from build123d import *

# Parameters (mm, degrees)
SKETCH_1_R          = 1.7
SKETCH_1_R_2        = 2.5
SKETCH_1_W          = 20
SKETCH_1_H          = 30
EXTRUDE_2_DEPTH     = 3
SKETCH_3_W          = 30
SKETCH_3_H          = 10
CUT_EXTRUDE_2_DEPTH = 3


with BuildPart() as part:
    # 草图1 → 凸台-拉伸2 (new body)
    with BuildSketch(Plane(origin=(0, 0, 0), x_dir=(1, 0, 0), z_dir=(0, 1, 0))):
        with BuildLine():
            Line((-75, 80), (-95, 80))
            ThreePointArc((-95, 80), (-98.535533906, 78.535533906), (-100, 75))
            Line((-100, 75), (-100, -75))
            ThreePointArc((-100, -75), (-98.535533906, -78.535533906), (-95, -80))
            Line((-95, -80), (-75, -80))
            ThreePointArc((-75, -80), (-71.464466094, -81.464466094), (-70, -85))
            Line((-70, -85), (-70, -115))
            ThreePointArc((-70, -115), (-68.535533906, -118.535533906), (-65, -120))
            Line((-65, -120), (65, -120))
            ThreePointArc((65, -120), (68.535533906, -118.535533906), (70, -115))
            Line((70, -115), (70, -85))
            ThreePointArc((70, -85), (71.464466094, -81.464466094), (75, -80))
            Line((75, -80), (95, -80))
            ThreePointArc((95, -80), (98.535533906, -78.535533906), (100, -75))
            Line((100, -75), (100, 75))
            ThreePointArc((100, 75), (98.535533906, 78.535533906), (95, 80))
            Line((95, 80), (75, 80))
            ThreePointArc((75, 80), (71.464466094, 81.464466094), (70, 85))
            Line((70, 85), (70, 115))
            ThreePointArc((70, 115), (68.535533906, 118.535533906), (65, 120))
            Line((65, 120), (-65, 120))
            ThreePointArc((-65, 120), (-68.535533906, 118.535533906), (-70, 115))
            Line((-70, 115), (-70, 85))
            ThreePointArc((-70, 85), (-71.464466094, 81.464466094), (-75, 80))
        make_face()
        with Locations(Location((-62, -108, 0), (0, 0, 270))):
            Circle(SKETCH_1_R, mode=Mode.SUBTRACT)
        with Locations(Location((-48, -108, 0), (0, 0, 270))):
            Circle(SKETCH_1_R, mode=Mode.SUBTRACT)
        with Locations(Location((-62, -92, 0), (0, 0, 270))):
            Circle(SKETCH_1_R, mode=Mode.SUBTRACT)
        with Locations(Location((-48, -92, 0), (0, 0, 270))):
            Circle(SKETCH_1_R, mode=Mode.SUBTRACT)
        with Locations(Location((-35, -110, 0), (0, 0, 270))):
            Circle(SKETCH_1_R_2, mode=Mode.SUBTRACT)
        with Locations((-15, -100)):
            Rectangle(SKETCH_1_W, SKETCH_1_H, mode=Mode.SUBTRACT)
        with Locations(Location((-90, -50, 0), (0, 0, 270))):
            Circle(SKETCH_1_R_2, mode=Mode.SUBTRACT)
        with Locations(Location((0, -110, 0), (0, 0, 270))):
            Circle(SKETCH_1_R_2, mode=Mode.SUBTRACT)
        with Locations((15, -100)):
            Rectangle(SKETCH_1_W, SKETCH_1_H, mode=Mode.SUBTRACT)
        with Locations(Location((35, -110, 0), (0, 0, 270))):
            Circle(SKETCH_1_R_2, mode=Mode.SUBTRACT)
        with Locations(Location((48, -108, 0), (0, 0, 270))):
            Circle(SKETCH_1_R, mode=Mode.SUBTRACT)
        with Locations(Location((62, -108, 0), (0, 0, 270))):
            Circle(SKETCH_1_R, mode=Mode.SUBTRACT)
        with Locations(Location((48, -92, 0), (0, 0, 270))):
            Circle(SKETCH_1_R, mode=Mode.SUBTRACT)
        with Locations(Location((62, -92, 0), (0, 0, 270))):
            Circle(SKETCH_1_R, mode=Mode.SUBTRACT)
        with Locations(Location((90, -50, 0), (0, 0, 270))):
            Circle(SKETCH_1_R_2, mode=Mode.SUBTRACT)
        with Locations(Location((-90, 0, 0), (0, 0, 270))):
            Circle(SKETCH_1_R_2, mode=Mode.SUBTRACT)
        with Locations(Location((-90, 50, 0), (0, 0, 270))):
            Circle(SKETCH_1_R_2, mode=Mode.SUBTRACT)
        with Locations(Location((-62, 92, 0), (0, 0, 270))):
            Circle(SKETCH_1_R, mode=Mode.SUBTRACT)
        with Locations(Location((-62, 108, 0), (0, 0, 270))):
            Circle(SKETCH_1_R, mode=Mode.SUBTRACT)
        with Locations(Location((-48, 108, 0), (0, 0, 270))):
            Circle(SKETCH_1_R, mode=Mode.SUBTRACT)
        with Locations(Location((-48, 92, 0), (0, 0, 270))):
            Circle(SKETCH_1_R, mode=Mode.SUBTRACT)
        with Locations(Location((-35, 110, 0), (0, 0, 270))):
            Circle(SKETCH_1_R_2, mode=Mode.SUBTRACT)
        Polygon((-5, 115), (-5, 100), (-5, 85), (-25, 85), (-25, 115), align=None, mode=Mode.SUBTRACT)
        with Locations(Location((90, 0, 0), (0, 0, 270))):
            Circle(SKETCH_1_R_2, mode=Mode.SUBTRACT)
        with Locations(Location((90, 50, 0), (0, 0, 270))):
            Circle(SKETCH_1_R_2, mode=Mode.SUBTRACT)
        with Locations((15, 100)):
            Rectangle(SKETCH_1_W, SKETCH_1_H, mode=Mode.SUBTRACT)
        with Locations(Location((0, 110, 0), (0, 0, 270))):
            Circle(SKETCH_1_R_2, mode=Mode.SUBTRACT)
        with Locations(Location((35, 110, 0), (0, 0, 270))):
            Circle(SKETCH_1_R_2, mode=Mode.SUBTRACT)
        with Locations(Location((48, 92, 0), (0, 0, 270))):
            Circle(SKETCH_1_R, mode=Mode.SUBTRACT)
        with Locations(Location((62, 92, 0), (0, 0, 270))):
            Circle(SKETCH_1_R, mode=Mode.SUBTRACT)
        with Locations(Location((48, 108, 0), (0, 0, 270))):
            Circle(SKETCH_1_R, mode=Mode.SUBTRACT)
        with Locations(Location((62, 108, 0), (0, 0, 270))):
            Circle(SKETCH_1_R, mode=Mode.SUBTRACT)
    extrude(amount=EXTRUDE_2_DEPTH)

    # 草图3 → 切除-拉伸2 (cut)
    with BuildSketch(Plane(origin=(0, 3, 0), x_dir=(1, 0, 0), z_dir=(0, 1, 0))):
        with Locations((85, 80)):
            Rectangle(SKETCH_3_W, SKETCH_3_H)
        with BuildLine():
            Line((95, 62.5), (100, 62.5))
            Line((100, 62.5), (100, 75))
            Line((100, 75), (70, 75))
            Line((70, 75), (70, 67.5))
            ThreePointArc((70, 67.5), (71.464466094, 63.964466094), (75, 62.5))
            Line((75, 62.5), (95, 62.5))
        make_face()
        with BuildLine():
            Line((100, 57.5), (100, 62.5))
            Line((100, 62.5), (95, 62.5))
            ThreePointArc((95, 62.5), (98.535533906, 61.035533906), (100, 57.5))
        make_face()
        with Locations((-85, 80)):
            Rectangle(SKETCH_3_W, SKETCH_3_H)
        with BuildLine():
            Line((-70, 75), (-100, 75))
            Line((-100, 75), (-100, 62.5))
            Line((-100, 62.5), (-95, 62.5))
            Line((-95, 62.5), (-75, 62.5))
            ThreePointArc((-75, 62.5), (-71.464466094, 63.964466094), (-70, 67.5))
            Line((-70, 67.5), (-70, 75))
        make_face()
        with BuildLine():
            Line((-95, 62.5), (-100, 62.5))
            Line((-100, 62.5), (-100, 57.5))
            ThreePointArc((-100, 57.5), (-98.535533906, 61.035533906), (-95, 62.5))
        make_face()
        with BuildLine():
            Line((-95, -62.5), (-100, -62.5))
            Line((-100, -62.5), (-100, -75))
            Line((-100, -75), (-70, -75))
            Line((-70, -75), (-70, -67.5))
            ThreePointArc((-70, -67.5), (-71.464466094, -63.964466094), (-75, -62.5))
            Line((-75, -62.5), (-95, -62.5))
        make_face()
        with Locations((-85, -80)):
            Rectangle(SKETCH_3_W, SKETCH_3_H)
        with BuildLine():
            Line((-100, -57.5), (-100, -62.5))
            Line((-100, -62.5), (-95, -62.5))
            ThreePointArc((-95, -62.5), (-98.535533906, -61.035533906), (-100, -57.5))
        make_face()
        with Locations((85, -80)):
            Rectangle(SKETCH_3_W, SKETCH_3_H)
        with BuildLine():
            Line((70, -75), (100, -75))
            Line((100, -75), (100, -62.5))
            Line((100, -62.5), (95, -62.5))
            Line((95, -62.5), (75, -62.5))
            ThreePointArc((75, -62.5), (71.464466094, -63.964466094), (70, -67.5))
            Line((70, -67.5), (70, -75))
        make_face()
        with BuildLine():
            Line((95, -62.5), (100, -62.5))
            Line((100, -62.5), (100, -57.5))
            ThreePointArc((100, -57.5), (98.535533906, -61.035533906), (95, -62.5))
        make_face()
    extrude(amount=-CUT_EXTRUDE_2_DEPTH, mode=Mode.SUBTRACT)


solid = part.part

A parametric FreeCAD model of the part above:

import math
import FreeCAD as App
import Part
import Sketcher


def add_polygon(sketch, points):
    """Adds a closed chain of lines whose ends are joined by coincident constraints."""
    first, n = sketch.GeometryCount, len(points)
    for a, b in zip(points, points[1:] + points[:1]):
        sketch.addGeometry(Part.LineSegment(App.Vector(*a, 0), App.Vector(*b, 0)), False)
    for i in range(n):
        sketch.addConstraint(Sketcher.Constraint("Coincident", first + i, 2, first + (i + 1) % n, 1))

doc = App.newDocument("Part")
body = doc.addObject("PartDesign::Body", "Body")

sketch1 = doc.addObject("Sketcher::SketchObject", "Sketch")
body.addObject(sketch1)
sketch1.AttachmentSupport = (doc.XZ_Plane, [""])
sketch1.MapMode = "FlatFace"
sketch1.addGeometry(Part.LineSegment(App.Vector(-75, -80, 0), App.Vector(-95, -80, 0)), False)
sketch1.addGeometry(Part.ArcOfCircle(Part.Circle(App.Vector(-95, -75, 0), App.Vector(0, 0, 1), 5), math.radians(180), math.radians(270)), False)
sketch1.addGeometry(Part.LineSegment(App.Vector(-100, -75, 0), App.Vector(-100, 75, 0)), False)
sketch1.addGeometry(Part.ArcOfCircle(Part.Circle(App.Vector(-95, 75, 0), App.Vector(0, 0, 1), 5), math.radians(90), math.radians(180)), False)
sketch1.addGeometry(Part.LineSegment(App.Vector(-95, 80, 0), App.Vector(-75, 80, 0)), False)
sketch1.addGeometry(Part.ArcOfCircle(Part.Circle(App.Vector(-75, 85, 0), App.Vector(0, 0, 1), 5), math.radians(-90), math.radians(0)), False)
sketch1.addGeometry(Part.LineSegment(App.Vector(-70, 85, 0), App.Vector(-70, 115, 0)), False)
sketch1.addGeometry(Part.ArcOfCircle(Part.Circle(App.Vector(-65, 115, 0), App.Vector(0, 0, 1), 5), math.radians(90), math.radians(180)), False)
sketch1.addGeometry(Part.LineSegment(App.Vector(-65, 120, 0), App.Vector(65, 120, 0)), False)
sketch1.addGeometry(Part.ArcOfCircle(Part.Circle(App.Vector(65, 115, 0), App.Vector(0, 0, 1), 5), math.radians(0), math.radians(90)), False)
sketch1.addGeometry(Part.LineSegment(App.Vector(70, 115, 0), App.Vector(70, 85, 0)), False)
sketch1.addGeometry(Part.ArcOfCircle(Part.Circle(App.Vector(75, 85, 0), App.Vector(0, 0, 1), 5), math.radians(180), math.radians(270)), False)
sketch1.addGeometry(Part.LineSegment(App.Vector(75, 80, 0), App.Vector(95, 80, 0)), False)
sketch1.addGeometry(Part.ArcOfCircle(Part.Circle(App.Vector(95, 75, 0), App.Vector(0, 0, 1), 5), math.radians(0), math.radians(90)), False)
sketch1.addGeometry(Part.LineSegment(App.Vector(100, 75, 0), App.Vector(100, -75, 0)), False)
sketch1.addGeometry(Part.ArcOfCircle(Part.Circle(App.Vector(95, -75, 0), App.Vector(0, 0, 1), 5), math.radians(-90), math.radians(0)), False)
sketch1.addGeometry(Part.LineSegment(App.Vector(95, -80, 0), App.Vector(75, -80, 0)), False)
sketch1.addGeometry(Part.ArcOfCircle(Part.Circle(App.Vector(75, -85, 0), App.Vector(0, 0, 1), 5), math.radians(90), math.radians(180)), False)
sketch1.addGeometry(Part.LineSegment(App.Vector(70, -85, 0), App.Vector(70, -115, 0)), False)
sketch1.addGeometry(Part.ArcOfCircle(Part.Circle(App.Vector(65, -115, 0), App.Vector(0, 0, 1), 5), math.radians(-90), math.radians(0)), False)
sketch1.addGeometry(Part.LineSegment(App.Vector(65, -120, 0), App.Vector(-65, -120, 0)), False)
sketch1.addGeometry(Part.ArcOfCircle(Part.Circle(App.Vector(-65, -115, 0), App.Vector(0, 0, 1), 5), math.radians(180), math.radians(270)), False)
sketch1.addGeometry(Part.LineSegment(App.Vector(-70, -115, 0), App.Vector(-70, -85, 0)), False)
sketch1.addGeometry(Part.ArcOfCircle(Part.Circle(App.Vector(-75, -85, 0), App.Vector(0, 0, 1), 5), math.radians(0), math.radians(90)), False)
sketch1.addGeometry(Part.Circle(App.Vector(-62, 108, 0), App.Vector(0, 0, 1), 1.7), False)
sketch1.addGeometry(Part.Circle(App.Vector(-48, 108, 0), App.Vector(0, 0, 1), 1.7), False)
sketch1.addGeometry(Part.Circle(App.Vector(-62, 92, 0), App.Vector(0, 0, 1), 1.7), False)
sketch1.addGeometry(Part.Circle(App.Vector(-48, 92, 0), App.Vector(0, 0, 1), 1.7), False)
sketch1.addGeometry(Part.Circle(App.Vector(-35, 110, 0), App.Vector(0, 0, 1), 2.5), False)
add_polygon(sketch1, [(-5, 115), (-25, 115), (-25, 85), (-5, 85)])
sketch1.addGeometry(Part.Circle(App.Vector(-90, 50, 0), App.Vector(0, 0, 1), 2.5), False)
sketch1.addGeometry(Part.Circle(App.Vector(0, 110, 0), App.Vector(0, 0, 1), 2.5), False)
add_polygon(sketch1, [(25, 115), (5, 115), (5, 85), (25, 85)])
sketch1.addGeometry(Part.Circle(App.Vector(35, 110, 0), App.Vector(0, 0, 1), 2.5), False)
sketch1.addGeometry(Part.Circle(App.Vector(48, 108, 0), App.Vector(0, 0, 1), 1.7), False)
sketch1.addGeometry(Part.Circle(App.Vector(62, 108, 0), App.Vector(0, 0, 1), 1.7), False)
sketch1.addGeometry(Part.Circle(App.Vector(48, 92, 0), App.Vector(0, 0, 1), 1.7), False)
sketch1.addGeometry(Part.Circle(App.Vector(62, 92, 0), App.Vector(0, 0, 1), 1.7), False)
sketch1.addGeometry(Part.Circle(App.Vector(90, 50, 0), App.Vector(0, 0, 1), 2.5), False)
sketch1.addGeometry(Part.Circle(App.Vector(-90, 0, 0), App.Vector(0, 0, 1), 2.5), False)
sketch1.addGeometry(Part.Circle(App.Vector(-90, -50, 0), App.Vector(0, 0, 1), 2.5), False)
sketch1.addGeometry(Part.Circle(App.Vector(-62, -92, 0), App.Vector(0, 0, 1), 1.7), False)
sketch1.addGeometry(Part.Circle(App.Vector(-48, -92, 0), App.Vector(0, 0, 1), 1.7), False)
sketch1.addGeometry(Part.Circle(App.Vector(-62, -108, 0), App.Vector(0, 0, 1), 1.7), False)
sketch1.addGeometry(Part.Circle(App.Vector(-48, -108, 0), App.Vector(0, 0, 1), 1.7), False)
sketch1.addGeometry(Part.Circle(App.Vector(-35, -110, 0), App.Vector(0, 0, 1), 2.5), False)
add_polygon(sketch1, [(-25, -115), (-5, -115), (-5, -85), (-25, -85)])
sketch1.addGeometry(Part.Circle(App.Vector(90, 0, 0), App.Vector(0, 0, 1), 2.5), False)
sketch1.addGeometry(Part.Circle(App.Vector(90, -50, 0), App.Vector(0, 0, 1), 2.5), False)
add_polygon(sketch1, [(25, -85), (5, -85), (5, -115), (25, -115)])
sketch1.addGeometry(Part.Circle(App.Vector(0, -110, 0), App.Vector(0, 0, 1), 2.5), False)
sketch1.addGeometry(Part.Circle(App.Vector(35, -110, 0), App.Vector(0, 0, 1), 2.5), False)
sketch1.addGeometry(Part.Circle(App.Vector(48, -92, 0), App.Vector(0, 0, 1), 1.7), False)
sketch1.addGeometry(Part.Circle(App.Vector(62, -92, 0), App.Vector(0, 0, 1), 1.7), False)
sketch1.addGeometry(Part.Circle(App.Vector(48, -108, 0), App.Vector(0, 0, 1), 1.7), False)
sketch1.addGeometry(Part.Circle(App.Vector(62, -108, 0), App.Vector(0, 0, 1), 1.7), False)
sketch1.addConstraint([
    Sketcher.Constraint("Tangent", 0, 2, 1, 2),
    Sketcher.Constraint("Tangent", 1, 1, 2, 1),
    Sketcher.Constraint("Tangent", 2, 2, 3, 2),
    Sketcher.Constraint("Tangent", 3, 1, 4, 1),
    Sketcher.Constraint("Tangent", 4, 2, 5, 1),
    Sketcher.Constraint("Tangent", 5, 2, 6, 1),
    Sketcher.Constraint("Tangent", 6, 2, 7, 2),
    Sketcher.Constraint("Tangent", 7, 1, 8, 1),
    Sketcher.Constraint("Tangent", 8, 2, 9, 2),
    Sketcher.Constraint("Tangent", 9, 1, 10, 1),
    Sketcher.Constraint("Tangent", 10, 2, 11, 1),
    Sketcher.Constraint("Tangent", 11, 2, 12, 1),
    Sketcher.Constraint("Tangent", 12, 2, 13, 2),
    Sketcher.Constraint("Tangent", 13, 1, 14, 1),
    Sketcher.Constraint("Tangent", 14, 2, 15, 2),
    Sketcher.Constraint("Tangent", 15, 1, 16, 1),
    Sketcher.Constraint("Tangent", 16, 2, 17, 1),
    Sketcher.Constraint("Tangent", 17, 2, 18, 1),
    Sketcher.Constraint("Tangent", 18, 2, 19, 2),
    Sketcher.Constraint("Tangent", 19, 1, 20, 1),
    Sketcher.Constraint("Tangent", 20, 2, 21, 2),
    Sketcher.Constraint("Tangent", 21, 1, 22, 1),
    Sketcher.Constraint("Tangent", 22, 2, 23, 1),
    Sketcher.Constraint("Tangent", 23, 2, 0, 1),
    Sketcher.Constraint("Horizontal", 0),
    Sketcher.Constraint("Vertical", 2),
    Sketcher.Constraint("Horizontal", 4),
    Sketcher.Constraint("Vertical", 6),
    Sketcher.Constraint("Horizontal", 8),
    Sketcher.Constraint("Vertical", 10),
    Sketcher.Constraint("Horizontal", 12),
    Sketcher.Constraint("Vertical", 14),
    Sketcher.Constraint("Horizontal", 16),
    Sketcher.Constraint("Vertical", 18),
    Sketcher.Constraint("Horizontal", 20),
    Sketcher.Constraint("Vertical", 22),
    Sketcher.Constraint("Horizontal", 29),
    Sketcher.Constraint("Vertical", 30),
    Sketcher.Constraint("Horizontal", 31),
    Sketcher.Constraint("Vertical", 32),
    Sketcher.Constraint("Horizontal", 35),
    Sketcher.Constraint("Vertical", 36),
    Sketcher.Constraint("Horizontal", 37),
    Sketcher.Constraint("Vertical", 38),
    Sketcher.Constraint("Horizontal", 52),
    Sketcher.Constraint("Vertical", 53),
    Sketcher.Constraint("Horizontal", 54),
    Sketcher.Constraint("Vertical", 55),
    Sketcher.Constraint("Horizontal", 58),
    Sketcher.Constraint("Vertical", 59),
    Sketcher.Constraint("Horizontal", 60),
    Sketcher.Constraint("Vertical", 61),
    Sketcher.Constraint("Equal", 1, 3),
    Sketcher.Constraint("Equal", 3, 5),
    Sketcher.Constraint("Equal", 5, 7),
    Sketcher.Constraint("Equal", 7, 9),
    Sketcher.Constraint("Equal", 9, 11),
    Sketcher.Constraint("Equal", 11, 13),
    Sketcher.Constraint("Equal", 13, 15),
    Sketcher.Constraint("Equal", 15, 17),
    Sketcher.Constraint("Equal", 17, 19),
    Sketcher.Constraint("Equal", 19, 21),
    Sketcher.Constraint("Equal", 21, 23),
    Sketcher.Constraint("Equal", 24, 25),
    Sketcher.Constraint("Equal", 25, 26),
    Sketcher.Constraint("Equal", 26, 27),
    Sketcher.Constraint("Equal", 28, 33),
    Sketcher.Constraint("Equal", 33, 34),
    Sketcher.Constraint("Equal", 34, 39),
    Sketcher.Constraint("Equal", 27, 40),
    Sketcher.Constraint("Equal", 40, 41),
    Sketcher.Constraint("Equal", 41, 42),
    Sketcher.Constraint("Equal", 42, 43),
    Sketcher.Constraint("Equal", 39, 44),
    Sketcher.Constraint("Equal", 44, 45),
    Sketcher.Constraint("Equal", 45, 46),
    Sketcher.Constraint("Equal", 43, 47),
    Sketcher.Constraint("Equal", 47, 48),
    Sketcher.Constraint("Equal", 48, 49),
    Sketcher.Constraint("Equal", 49, 50),
    Sketcher.Constraint("Equal", 46, 51),
    Sketcher.Constraint("Equal", 51, 56),
    Sketcher.Constraint("Equal", 56, 57),
    Sketcher.Constraint("Equal", 57, 62),
    Sketcher.Constraint("Equal", 62, 63),
    Sketcher.Constraint("Equal", 50, 64),
    Sketcher.Constraint("Equal", 64, 65),
    Sketcher.Constraint("Equal", 65, 66),
    Sketcher.Constraint("Equal", 66, 67),
    Sketcher.Constraint("Symmetric", 1, 3, 13, 3, -1, 1),
    Sketcher.Constraint("Symmetric", 5, 3, 17, 3, -1, 1),
    Sketcher.Constraint("Symmetric", 9, 3, 21, 3, -1, 1),
    Sketcher.Constraint("Symmetric", 44, 3, 46, 3, -1, 1),
    Sketcher.Constraint("Symmetric", 43, 3, 47, 3, -1, 1),
    Sketcher.Constraint("Symmetric", 42, 3, 48, 3, -1, 1),
    Sketcher.Constraint("Symmetric", 41, 3, 49, 3, -1, 1),
    Sketcher.Constraint("Symmetric", 40, 3, 50, 3, -1, 1),
    Sketcher.Constraint("Symmetric", 39, 3, 51, 3, -1, 1),
    Sketcher.Constraint("Symmetric", 45, 3, 56, 3, -1, 1),
    Sketcher.Constraint("Symmetric", 33, 3, 57, 3, -1, 1),
    Sketcher.Constraint("Symmetric", 34, 3, 62, 3, -1, 1),
    Sketcher.Constraint("Symmetric", 28, 3, 63, 3, -1, 1),
    Sketcher.Constraint("Symmetric", 27, 3, 64, 3, -1, 1),
    Sketcher.Constraint("Symmetric", 26, 3, 65, 3, -1, 1),
    Sketcher.Constraint("Symmetric", 25, 3, 66, 3, -1, 1),
    Sketcher.Constraint("Symmetric", 24, 3, 67, 3, -1, 1),
    Sketcher.Constraint("Symmetric", 35, 2, 52, 2, -1, 1),
    Sketcher.Constraint("Symmetric", 37, 2, 54, 2, -1, 1),
    Sketcher.Constraint("Symmetric", 31, 2, 58, 2, -1, 1),
    Sketcher.Constraint("Symmetric", 29, 2, 60, 2, -1, 1),
    Sketcher.Constraint("Symmetric", 5, 3, 11, 3, -2),
    Sketcher.Constraint("Symmetric", 28, 3, 39, 3, -2),
    Sketcher.Constraint("Symmetric", 25, 3, 40, 3, -2),
    Sketcher.Constraint("Symmetric", 24, 3, 41, 3, -2),
    Sketcher.Constraint("Symmetric", 27, 3, 42, 3, -2),
    Sketcher.Constraint("Symmetric", 26, 3, 43, 3, -2),
    Sketcher.Constraint("Symmetric", 33, 3, 44, 3, -2),
    Sketcher.Constraint("Symmetric", 32, 2, 35, 2, -2),
    Sketcher.Constraint("Symmetric", 30, 2, 37, 2, -2),
    Sketcher.Constraint("PointOnObject", 34, 3, -2),
    Sketcher.Constraint("PointOnObject", 45, 3, -1),
    Sketcher.Constraint("Horizontal", 24, 3, 25, 3),
    Sketcher.Constraint("Horizontal", 26, 3, 27, 3),
    Sketcher.Constraint("Horizontal", 28, 3, 34, 3),
    Sketcher.Constraint("Horizontal", 9, 1, 29, 2),
    Sketcher.Constraint("Horizontal", 10, 2, 30, 2),
    Sketcher.Constraint("Vertical", 24, 3, 26, 3),
    Sketcher.Constraint("Vertical", 25, 3, 27, 3),
    Sketcher.Constraint("Vertical", 33, 3, 45, 3),
    Sketcher.Constraint("Equal", 16, 29),
    Sketcher.Constraint("Diameter", 28, 5.0),
    Sketcher.Constraint("Radius", 1, 5.0),
    Sketcher.Constraint("Diameter", 24, 3.4),
    Sketcher.Constraint("DistanceX", 0, 2, 0, 1, 20.0),
    Sketcher.Constraint("DistanceX", 8, 1, 8, 2, 130.0),
    Sketcher.Constraint("DistanceY", 2, 1, 2, 2, 150.0),
    Sketcher.Constraint("DistanceY", 6, 1, 6, 2, 30.0),
    Sketcher.Constraint("DistanceX", 24, 3, -1, 1, 62.0),
    Sketcher.Constraint("DistanceY", -1, 1, 24, 3, 108.0),
    Sketcher.Constraint("DistanceX", 25, 3, -1, 1, 48.0),
    Sketcher.Constraint("DistanceY", -1, 1, 26, 3, 92.0),
    Sketcher.Constraint("DistanceX", 28, 3, -1, 1, 35.0),
    Sketcher.Constraint("DistanceY", -1, 1, 28, 3, 110.0),
    Sketcher.Constraint("DistanceX", 33, 3, -1, 1, 90.0),
    Sketcher.Constraint("DistanceY", -1, 1, 33, 3, 50.0),
    Sketcher.Constraint("DistanceX", 29, 2, -1, 1, 25.0),
])
pad1 = doc.addObject("PartDesign::Pad", "Pad")
body.addObject(pad1)
pad1.Profile = sketch1
pad1.Length = 3
pad1.Reversed = True

sketch2 = doc.addObject("Sketcher::SketchObject", "Sketch001")
body.addObject(sketch2)
sketch2.AttachmentSupport = (doc.XZ_Plane, [""])
sketch2.MapMode = "FlatFace"
sketch2.AttachmentOffset = App.Placement(App.Vector(0, 0, -3), App.Rotation())
sketch2.addGeometry([
    Part.LineSegment(App.Vector(70, -85, 0), App.Vector(70, -68, 0)),
    Part.ArcOfCircle(Part.Circle(App.Vector(75, -68, 0), App.Vector(0, 0, 1), 5), math.radians(90), math.radians(180)),
    Part.LineSegment(App.Vector(75, -62, 0), App.Vector(95, -62, 0)),
    Part.ArcOfCircle(Part.Circle(App.Vector(95, -58, 0), App.Vector(0, 0, 1), 5), math.radians(-90), math.radians(0)),
    Part.LineSegment(App.Vector(100, -58, 0), App.Vector(100, -85, 0)),
    Part.LineSegment(App.Vector(100, -85, 0), App.Vector(70, -85, 0)),
    Part.LineSegment(App.Vector(-100, -85, 0), App.Vector(-100, -58, 0)),
    Part.ArcOfCircle(Part.Circle(App.Vector(-95, -58, 0), App.Vector(0, 0, 1), 5), math.radians(180), math.radians(270)),
    Part.LineSegment(App.Vector(-95, -62, 0), App.Vector(-75, -62, 0)),
    Part.ArcOfCircle(Part.Circle(App.Vector(-75, -68, 0), App.Vector(0, 0, 1), 5), math.radians(0), math.radians(90)),
    Part.LineSegment(App.Vector(-70, -68, 0), App.Vector(-70, -85, 0)),
    Part.LineSegment(App.Vector(-70, -85, 0), App.Vector(-100, -85, 0)),
    Part.LineSegment(App.Vector(-100, 85, 0), App.Vector(-70, 85, 0)),
    Part.LineSegment(App.Vector(-70, 85, 0), App.Vector(-70, 68, 0)),
    Part.ArcOfCircle(Part.Circle(App.Vector(-75, 68, 0), App.Vector(0, 0, 1), 5), math.radians(-90), math.radians(0)),
    Part.LineSegment(App.Vector(-75, 62, 0), App.Vector(-95, 62, 0)),
    Part.ArcOfCircle(Part.Circle(App.Vector(-95, 58, 0), App.Vector(0, 0, 1), 5), math.radians(90), math.radians(180)),
    Part.LineSegment(App.Vector(-100, 58, 0), App.Vector(-100, 85, 0)),
    Part.LineSegment(App.Vector(70, 85, 0), App.Vector(100, 85, 0)),
    Part.LineSegment(App.Vector(100, 85, 0), App.Vector(100, 58, 0)),
    Part.ArcOfCircle(Part.Circle(App.Vector(95, 58, 0), App.Vector(0, 0, 1), 5), math.radians(0), math.radians(90)),
    Part.LineSegment(App.Vector(95, 62, 0), App.Vector(75, 62, 0)),
    Part.ArcOfCircle(Part.Circle(App.Vector(75, 68, 0), App.Vector(0, 0, 1), 5), math.radians(180), math.radians(270)),
    Part.LineSegment(App.Vector(70, 68, 0), App.Vector(70, 85, 0)),
], False)
sketch2.addConstraint([
    Sketcher.Constraint("Tangent", 0, 2, 1, 2),
    Sketcher.Constraint("Tangent", 1, 1, 2, 1),
    Sketcher.Constraint("Tangent", 2, 2, 3, 1),
    Sketcher.Constraint("Tangent", 3, 2, 4, 1),
    Sketcher.Constraint("Coincident", 4, 2, 5, 1),
    Sketcher.Constraint("Coincident", 5, 2, 0, 1),
    Sketcher.Constraint("Tangent", 6, 2, 7, 1),
    Sketcher.Constraint("Tangent", 7, 2, 8, 1),
    Sketcher.Constraint("Tangent", 8, 2, 9, 2),
    Sketcher.Constraint("Tangent", 9, 1, 10, 1),
    Sketcher.Constraint("Coincident", 10, 2, 11, 1),
    Sketcher.Constraint("Coincident", 11, 2, 6, 1),
    Sketcher.Constraint("Coincident", 12, 2, 13, 1),
    Sketcher.Constraint("Tangent", 13, 2, 14, 2),
    Sketcher.Constraint("Tangent", 14, 1, 15, 1),
    Sketcher.Constraint("Tangent", 15, 2, 16, 1),
    Sketcher.Constraint("Tangent", 16, 2, 17, 1),
    Sketcher.Constraint("Coincident", 17, 2, 12, 1),
    Sketcher.Constraint("Coincident", 18, 2, 19, 1),
    Sketcher.Constraint("Tangent", 19, 2, 20, 1),
    Sketcher.Constraint("Tangent", 20, 2, 21, 1),
    Sketcher.Constraint("Tangent", 21, 2, 22, 2),
    Sketcher.Constraint("Tangent", 22, 1, 23, 1),
    Sketcher.Constraint("Coincident", 23, 2, 18, 1),
    Sketcher.Constraint("Vertical", 0),
    Sketcher.Constraint("Horizontal", 2),
    Sketcher.Constraint("Vertical", 4),
    Sketcher.Constraint("Horizontal", 5),
    Sketcher.Constraint("Vertical", 6),
    Sketcher.Constraint("Horizontal", 8),
    Sketcher.Constraint("Vertical", 10),
    Sketcher.Constraint("Horizontal", 11),
    Sketcher.Constraint("Horizontal", 12),
    Sketcher.Constraint("Vertical", 13),
    Sketcher.Constraint("Horizontal", 15),
    Sketcher.Constraint("Vertical", 17),
    Sketcher.Constraint("Horizontal", 18),
    Sketcher.Constraint("Vertical", 19),
    Sketcher.Constraint("Horizontal", 21),
    Sketcher.Constraint("Vertical", 23),
    Sketcher.Constraint("Equal", 1, 3),
    Sketcher.Constraint("Equal", 3, 7),
    Sketcher.Constraint("Equal", 7, 9),
    Sketcher.Constraint("Equal", 9, 14),
    Sketcher.Constraint("Equal", 14, 16),
    Sketcher.Constraint("Equal", 16, 20),
    Sketcher.Constraint("Equal", 20, 22),
    Sketcher.Constraint("Symmetric", 1, 3, 14, 3, -1, 1),
    Sketcher.Constraint("Symmetric", 7, 3, 20, 3, -1, 1),
    Sketcher.Constraint("Symmetric", 4, 2, 17, 2, -1, 1),
    Sketcher.Constraint("Symmetric", 10, 2, 23, 2, -1, 1),
    Sketcher.Constraint("Symmetric", 3, 3, 7, 3, -2),
    Sketcher.Constraint("Symmetric", 5, 2, 10, 2, -2),
    Sketcher.Constraint("Radius", 1, 5.0),
    Sketcher.Constraint("DistanceX", 2, 1, 2, 2, 20.0),
    Sketcher.Constraint("DistanceY", 0, 1, 0, 2, 17.5),
    Sketcher.Constraint("DistanceX", -1, 1, 1, 3, 75.0),
    Sketcher.Constraint("DistanceY", 4, 2, -1, 1, 85.0),
])
pocket1 = doc.addObject("PartDesign::Pocket", "Pocket")
body.addObject(pocket1)
pocket1.Profile = sketch2
pocket1.Length = 3
pocket1.Reversed = True

doc.recompute()
